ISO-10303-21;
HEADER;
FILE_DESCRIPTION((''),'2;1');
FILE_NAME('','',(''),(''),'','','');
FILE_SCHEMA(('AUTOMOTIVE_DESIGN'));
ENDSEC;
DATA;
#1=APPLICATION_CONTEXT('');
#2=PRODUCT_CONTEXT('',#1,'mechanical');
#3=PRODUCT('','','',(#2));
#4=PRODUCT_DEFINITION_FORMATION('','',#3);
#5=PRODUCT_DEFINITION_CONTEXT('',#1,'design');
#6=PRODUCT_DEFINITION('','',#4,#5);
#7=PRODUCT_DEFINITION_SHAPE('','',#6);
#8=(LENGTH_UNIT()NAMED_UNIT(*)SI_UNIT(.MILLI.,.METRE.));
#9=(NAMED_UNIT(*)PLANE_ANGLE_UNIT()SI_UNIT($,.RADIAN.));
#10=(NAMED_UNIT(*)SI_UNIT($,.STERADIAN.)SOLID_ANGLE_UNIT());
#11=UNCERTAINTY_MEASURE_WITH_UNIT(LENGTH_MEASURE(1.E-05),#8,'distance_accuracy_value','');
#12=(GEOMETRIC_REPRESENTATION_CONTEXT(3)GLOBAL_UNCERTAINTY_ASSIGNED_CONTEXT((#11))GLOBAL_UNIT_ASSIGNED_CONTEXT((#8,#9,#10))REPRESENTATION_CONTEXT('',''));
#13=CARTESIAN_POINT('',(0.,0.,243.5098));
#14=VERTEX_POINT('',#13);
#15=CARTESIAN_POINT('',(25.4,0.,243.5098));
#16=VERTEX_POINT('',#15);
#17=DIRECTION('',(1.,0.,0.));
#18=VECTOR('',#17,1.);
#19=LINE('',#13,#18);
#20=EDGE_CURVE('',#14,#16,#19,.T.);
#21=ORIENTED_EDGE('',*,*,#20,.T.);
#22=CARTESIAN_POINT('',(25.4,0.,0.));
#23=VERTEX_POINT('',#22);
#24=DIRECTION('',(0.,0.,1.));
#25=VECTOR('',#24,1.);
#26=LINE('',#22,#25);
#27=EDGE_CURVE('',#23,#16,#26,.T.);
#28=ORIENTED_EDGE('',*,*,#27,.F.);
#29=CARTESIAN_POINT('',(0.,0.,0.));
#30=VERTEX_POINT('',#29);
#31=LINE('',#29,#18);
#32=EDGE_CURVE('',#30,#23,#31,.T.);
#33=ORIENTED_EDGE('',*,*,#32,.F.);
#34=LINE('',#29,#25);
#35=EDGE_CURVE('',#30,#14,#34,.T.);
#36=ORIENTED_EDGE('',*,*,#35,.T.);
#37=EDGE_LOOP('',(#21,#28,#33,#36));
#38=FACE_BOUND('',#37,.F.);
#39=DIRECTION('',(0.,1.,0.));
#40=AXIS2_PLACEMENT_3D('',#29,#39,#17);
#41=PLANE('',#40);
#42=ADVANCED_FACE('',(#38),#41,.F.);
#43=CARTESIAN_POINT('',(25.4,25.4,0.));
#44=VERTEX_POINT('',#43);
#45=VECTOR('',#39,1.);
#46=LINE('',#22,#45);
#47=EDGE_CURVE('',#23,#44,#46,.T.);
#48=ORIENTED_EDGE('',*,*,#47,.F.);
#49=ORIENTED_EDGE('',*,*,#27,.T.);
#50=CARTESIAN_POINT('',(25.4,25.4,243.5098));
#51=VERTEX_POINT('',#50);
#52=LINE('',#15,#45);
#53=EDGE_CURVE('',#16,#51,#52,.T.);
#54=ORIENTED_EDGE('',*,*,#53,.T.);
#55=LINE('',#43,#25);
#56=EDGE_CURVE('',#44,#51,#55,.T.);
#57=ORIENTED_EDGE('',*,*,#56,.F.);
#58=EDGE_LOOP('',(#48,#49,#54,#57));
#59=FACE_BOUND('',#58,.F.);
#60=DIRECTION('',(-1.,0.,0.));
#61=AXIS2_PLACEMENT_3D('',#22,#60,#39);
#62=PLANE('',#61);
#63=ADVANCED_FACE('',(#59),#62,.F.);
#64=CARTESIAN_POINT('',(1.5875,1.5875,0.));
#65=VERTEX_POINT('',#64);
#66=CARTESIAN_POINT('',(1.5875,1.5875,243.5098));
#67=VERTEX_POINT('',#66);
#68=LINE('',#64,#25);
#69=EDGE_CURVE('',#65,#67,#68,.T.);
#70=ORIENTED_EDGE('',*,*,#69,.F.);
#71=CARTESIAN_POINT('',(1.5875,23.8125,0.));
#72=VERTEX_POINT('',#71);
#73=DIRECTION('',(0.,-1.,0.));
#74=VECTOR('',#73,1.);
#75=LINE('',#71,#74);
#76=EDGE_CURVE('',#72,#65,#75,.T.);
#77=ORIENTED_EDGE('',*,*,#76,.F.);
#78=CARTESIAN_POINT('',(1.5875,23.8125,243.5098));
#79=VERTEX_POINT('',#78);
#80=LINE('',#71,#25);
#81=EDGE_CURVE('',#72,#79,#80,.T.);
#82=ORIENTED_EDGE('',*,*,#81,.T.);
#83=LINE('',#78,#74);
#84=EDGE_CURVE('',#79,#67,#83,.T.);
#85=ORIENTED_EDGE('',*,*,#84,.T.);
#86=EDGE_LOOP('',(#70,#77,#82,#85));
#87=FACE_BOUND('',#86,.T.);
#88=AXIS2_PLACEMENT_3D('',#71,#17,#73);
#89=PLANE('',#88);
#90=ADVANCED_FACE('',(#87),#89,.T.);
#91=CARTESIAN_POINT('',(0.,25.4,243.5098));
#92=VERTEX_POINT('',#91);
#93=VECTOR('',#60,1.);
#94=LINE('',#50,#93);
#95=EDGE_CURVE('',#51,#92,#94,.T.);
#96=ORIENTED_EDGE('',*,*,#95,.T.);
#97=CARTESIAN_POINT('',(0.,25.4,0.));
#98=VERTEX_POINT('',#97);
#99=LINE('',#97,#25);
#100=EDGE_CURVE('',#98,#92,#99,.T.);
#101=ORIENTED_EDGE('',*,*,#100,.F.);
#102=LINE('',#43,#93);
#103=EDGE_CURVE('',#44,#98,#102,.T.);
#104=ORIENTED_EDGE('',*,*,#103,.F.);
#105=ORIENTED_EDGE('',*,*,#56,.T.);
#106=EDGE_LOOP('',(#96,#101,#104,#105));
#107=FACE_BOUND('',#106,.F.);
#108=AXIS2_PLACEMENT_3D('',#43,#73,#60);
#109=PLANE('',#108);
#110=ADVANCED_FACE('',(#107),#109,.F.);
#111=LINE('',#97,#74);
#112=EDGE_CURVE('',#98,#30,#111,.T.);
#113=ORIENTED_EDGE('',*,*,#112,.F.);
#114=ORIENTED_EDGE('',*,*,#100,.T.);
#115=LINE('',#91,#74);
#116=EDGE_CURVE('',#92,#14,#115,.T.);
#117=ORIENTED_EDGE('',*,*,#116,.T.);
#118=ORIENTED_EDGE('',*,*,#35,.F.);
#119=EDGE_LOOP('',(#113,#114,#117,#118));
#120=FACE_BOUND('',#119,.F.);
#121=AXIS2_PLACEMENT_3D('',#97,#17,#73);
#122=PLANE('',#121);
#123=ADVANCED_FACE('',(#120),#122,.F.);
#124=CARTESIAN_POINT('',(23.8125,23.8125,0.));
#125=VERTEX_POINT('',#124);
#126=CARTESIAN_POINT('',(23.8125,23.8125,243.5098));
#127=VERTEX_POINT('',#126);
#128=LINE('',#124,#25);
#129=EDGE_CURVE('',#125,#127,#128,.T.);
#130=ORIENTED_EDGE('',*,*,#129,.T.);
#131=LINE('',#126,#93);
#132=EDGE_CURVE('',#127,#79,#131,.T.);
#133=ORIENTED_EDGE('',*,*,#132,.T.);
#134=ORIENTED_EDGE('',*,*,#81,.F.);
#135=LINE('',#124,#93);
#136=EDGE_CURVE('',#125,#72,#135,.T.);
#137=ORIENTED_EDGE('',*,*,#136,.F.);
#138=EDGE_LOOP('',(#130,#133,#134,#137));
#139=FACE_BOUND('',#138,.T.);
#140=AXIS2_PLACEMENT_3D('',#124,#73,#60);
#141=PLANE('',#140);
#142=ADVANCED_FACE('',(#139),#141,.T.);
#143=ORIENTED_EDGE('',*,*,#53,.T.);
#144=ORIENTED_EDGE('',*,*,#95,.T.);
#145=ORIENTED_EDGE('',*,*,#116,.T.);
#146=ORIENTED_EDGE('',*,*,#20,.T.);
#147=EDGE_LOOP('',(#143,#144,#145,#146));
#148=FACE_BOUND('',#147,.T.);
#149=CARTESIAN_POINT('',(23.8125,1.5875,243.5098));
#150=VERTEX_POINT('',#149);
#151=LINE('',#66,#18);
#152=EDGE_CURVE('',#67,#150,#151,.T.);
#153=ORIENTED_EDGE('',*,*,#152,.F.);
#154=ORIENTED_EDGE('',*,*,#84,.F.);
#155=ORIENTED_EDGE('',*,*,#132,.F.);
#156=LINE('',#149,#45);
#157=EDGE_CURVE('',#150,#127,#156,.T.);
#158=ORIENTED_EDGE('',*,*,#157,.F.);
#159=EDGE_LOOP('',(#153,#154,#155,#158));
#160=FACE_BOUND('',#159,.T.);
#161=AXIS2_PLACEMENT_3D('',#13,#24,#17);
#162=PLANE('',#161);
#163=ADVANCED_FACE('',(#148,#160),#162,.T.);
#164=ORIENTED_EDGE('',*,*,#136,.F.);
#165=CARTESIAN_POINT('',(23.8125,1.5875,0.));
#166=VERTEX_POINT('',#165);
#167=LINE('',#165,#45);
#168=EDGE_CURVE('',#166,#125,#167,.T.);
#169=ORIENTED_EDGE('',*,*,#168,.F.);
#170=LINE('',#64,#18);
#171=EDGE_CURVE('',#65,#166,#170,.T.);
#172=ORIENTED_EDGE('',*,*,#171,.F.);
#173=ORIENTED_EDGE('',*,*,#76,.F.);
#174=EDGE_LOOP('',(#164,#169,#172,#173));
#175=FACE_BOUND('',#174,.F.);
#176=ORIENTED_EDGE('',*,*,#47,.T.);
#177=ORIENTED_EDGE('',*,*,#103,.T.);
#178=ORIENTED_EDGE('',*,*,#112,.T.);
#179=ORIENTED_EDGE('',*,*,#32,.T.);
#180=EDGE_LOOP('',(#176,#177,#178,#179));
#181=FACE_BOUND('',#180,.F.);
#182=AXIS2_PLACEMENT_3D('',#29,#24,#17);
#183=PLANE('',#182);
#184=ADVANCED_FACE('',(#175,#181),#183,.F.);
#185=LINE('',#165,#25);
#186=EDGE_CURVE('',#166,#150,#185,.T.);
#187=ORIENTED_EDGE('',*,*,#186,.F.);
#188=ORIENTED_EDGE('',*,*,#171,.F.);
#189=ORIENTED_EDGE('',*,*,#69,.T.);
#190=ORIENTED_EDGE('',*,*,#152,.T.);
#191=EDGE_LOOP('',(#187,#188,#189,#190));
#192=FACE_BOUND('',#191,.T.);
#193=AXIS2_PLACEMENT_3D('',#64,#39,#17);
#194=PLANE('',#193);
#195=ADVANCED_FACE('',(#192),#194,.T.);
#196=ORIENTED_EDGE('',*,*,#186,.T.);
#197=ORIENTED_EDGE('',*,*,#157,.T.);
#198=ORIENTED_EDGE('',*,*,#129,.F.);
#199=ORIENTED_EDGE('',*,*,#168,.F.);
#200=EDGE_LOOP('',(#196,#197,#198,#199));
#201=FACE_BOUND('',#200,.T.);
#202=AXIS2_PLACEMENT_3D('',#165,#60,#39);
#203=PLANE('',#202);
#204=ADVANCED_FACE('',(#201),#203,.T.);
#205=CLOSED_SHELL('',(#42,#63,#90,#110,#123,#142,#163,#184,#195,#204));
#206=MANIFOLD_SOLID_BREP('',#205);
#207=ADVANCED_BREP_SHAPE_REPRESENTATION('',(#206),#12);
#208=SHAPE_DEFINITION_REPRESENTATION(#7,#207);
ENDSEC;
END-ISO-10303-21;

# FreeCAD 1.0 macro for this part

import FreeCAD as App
import Part
import Sketcher

V = App.Vector
Q = App.Units.Quantity

doc = App.newDocument("Part")
params = doc.addObject("Spreadsheet::Sheet", "Params")
for row, (alias, value) in enumerate([
    ("sketch1_width", "1 in"),
    ("pad1_length", "9.587 in"),
], start=1):
    params.set(f"A{row}", alias)
    params.set(f"B{row}", "=" + value)
    params.setAlias(f"B{row}", alias)

body = doc.addObject("PartDesign::Body", "Body")

# Sketch on XY plane
sketch1 = body.newObject("Sketcher::SketchObject", "Sketch")
sketch1.AttachmentSupport = (doc.getObject("XY_Plane"), [""])
sketch1.MapMode = "FlatFace"
sketch1.addGeometry([
    Part.LineSegment(V(0, 25, 0), V(0, 0, 0)),  # 0
    Part.LineSegment(V(0, 0, 0), V(25, 0, 0)),  # 1
    Part.LineSegment(V(25, 0, 0), V(25, 25, 0)),  # 2
    Part.LineSegment(V(25, 25, 0), V(0, 25, 0)),  # 3
    Part.LineSegment(V(24, 2, 0), V(2, 2, 0)),  # 4
    Part.LineSegment(V(2, 2, 0), V(2, 24, 0)),  # 5
    Part.LineSegment(V(2, 24, 0), V(24, 24, 0)),  # 6
    Part.LineSegment(V(24, 24, 0), V(24, 2, 0)),  # 7
], False)
sketch1.addConstraint([
    Sketcher.Constraint("Coincident", 0, 2, 1, 1),
    Sketcher.Constraint("Coincident", 1, 2, 2, 1),
    Sketcher.Constraint("Coincident", 2, 2, 3, 1),
    Sketcher.Constraint("Coincident", 3, 2, 0, 1),
    Sketcher.Constraint("Coincident", 4, 2, 5, 1),
    Sketcher.Constraint("Coincident", 5, 2, 6, 1),
    Sketcher.Constraint("Coincident", 6, 2, 7, 1),
    Sketcher.Constraint("Coincident", 7, 2, 4, 1),
    Sketcher.Constraint("Vertical", 0),
    Sketcher.Constraint("Horizontal", 1),
    Sketcher.Constraint("Vertical", 2),
    Sketcher.Constraint("Horizontal", 3),
    Sketcher.Constraint("Horizontal", 4),
    Sketcher.Constraint("Vertical", 5),
    Sketcher.Constraint("Horizontal", 6),
    Sketcher.Constraint("Vertical", 7),
    Sketcher.Constraint("Coincident", 0, 2, -1, 1),
    Sketcher.Constraint("Equal", 3, 0),
    Sketcher.Constraint("Equal", 6, 5),
    Sketcher.Constraint("DistanceX", 1, 1, 1, 2, Q("1 in")),
    Sketcher.Constraint("DistanceX", -1, 1, 4, 2, Q("0.0625 in")),
    Sketcher.Constraint("DistanceY", -1, 1, 4, 2, Q("0.0625 in")),
    Sketcher.Constraint("DistanceY", 5, 2, 3, 2, Q("0.0625 in")),
])
sketch1.setExpression("Constraints[19]", "Params.sketch1_width")
pad1 = body.newObject("PartDesign::Pad", "Pad")
pad1.Profile = sketch1
pad1.setExpression("Length", "Params.pad1_length")

doc.recompute()
